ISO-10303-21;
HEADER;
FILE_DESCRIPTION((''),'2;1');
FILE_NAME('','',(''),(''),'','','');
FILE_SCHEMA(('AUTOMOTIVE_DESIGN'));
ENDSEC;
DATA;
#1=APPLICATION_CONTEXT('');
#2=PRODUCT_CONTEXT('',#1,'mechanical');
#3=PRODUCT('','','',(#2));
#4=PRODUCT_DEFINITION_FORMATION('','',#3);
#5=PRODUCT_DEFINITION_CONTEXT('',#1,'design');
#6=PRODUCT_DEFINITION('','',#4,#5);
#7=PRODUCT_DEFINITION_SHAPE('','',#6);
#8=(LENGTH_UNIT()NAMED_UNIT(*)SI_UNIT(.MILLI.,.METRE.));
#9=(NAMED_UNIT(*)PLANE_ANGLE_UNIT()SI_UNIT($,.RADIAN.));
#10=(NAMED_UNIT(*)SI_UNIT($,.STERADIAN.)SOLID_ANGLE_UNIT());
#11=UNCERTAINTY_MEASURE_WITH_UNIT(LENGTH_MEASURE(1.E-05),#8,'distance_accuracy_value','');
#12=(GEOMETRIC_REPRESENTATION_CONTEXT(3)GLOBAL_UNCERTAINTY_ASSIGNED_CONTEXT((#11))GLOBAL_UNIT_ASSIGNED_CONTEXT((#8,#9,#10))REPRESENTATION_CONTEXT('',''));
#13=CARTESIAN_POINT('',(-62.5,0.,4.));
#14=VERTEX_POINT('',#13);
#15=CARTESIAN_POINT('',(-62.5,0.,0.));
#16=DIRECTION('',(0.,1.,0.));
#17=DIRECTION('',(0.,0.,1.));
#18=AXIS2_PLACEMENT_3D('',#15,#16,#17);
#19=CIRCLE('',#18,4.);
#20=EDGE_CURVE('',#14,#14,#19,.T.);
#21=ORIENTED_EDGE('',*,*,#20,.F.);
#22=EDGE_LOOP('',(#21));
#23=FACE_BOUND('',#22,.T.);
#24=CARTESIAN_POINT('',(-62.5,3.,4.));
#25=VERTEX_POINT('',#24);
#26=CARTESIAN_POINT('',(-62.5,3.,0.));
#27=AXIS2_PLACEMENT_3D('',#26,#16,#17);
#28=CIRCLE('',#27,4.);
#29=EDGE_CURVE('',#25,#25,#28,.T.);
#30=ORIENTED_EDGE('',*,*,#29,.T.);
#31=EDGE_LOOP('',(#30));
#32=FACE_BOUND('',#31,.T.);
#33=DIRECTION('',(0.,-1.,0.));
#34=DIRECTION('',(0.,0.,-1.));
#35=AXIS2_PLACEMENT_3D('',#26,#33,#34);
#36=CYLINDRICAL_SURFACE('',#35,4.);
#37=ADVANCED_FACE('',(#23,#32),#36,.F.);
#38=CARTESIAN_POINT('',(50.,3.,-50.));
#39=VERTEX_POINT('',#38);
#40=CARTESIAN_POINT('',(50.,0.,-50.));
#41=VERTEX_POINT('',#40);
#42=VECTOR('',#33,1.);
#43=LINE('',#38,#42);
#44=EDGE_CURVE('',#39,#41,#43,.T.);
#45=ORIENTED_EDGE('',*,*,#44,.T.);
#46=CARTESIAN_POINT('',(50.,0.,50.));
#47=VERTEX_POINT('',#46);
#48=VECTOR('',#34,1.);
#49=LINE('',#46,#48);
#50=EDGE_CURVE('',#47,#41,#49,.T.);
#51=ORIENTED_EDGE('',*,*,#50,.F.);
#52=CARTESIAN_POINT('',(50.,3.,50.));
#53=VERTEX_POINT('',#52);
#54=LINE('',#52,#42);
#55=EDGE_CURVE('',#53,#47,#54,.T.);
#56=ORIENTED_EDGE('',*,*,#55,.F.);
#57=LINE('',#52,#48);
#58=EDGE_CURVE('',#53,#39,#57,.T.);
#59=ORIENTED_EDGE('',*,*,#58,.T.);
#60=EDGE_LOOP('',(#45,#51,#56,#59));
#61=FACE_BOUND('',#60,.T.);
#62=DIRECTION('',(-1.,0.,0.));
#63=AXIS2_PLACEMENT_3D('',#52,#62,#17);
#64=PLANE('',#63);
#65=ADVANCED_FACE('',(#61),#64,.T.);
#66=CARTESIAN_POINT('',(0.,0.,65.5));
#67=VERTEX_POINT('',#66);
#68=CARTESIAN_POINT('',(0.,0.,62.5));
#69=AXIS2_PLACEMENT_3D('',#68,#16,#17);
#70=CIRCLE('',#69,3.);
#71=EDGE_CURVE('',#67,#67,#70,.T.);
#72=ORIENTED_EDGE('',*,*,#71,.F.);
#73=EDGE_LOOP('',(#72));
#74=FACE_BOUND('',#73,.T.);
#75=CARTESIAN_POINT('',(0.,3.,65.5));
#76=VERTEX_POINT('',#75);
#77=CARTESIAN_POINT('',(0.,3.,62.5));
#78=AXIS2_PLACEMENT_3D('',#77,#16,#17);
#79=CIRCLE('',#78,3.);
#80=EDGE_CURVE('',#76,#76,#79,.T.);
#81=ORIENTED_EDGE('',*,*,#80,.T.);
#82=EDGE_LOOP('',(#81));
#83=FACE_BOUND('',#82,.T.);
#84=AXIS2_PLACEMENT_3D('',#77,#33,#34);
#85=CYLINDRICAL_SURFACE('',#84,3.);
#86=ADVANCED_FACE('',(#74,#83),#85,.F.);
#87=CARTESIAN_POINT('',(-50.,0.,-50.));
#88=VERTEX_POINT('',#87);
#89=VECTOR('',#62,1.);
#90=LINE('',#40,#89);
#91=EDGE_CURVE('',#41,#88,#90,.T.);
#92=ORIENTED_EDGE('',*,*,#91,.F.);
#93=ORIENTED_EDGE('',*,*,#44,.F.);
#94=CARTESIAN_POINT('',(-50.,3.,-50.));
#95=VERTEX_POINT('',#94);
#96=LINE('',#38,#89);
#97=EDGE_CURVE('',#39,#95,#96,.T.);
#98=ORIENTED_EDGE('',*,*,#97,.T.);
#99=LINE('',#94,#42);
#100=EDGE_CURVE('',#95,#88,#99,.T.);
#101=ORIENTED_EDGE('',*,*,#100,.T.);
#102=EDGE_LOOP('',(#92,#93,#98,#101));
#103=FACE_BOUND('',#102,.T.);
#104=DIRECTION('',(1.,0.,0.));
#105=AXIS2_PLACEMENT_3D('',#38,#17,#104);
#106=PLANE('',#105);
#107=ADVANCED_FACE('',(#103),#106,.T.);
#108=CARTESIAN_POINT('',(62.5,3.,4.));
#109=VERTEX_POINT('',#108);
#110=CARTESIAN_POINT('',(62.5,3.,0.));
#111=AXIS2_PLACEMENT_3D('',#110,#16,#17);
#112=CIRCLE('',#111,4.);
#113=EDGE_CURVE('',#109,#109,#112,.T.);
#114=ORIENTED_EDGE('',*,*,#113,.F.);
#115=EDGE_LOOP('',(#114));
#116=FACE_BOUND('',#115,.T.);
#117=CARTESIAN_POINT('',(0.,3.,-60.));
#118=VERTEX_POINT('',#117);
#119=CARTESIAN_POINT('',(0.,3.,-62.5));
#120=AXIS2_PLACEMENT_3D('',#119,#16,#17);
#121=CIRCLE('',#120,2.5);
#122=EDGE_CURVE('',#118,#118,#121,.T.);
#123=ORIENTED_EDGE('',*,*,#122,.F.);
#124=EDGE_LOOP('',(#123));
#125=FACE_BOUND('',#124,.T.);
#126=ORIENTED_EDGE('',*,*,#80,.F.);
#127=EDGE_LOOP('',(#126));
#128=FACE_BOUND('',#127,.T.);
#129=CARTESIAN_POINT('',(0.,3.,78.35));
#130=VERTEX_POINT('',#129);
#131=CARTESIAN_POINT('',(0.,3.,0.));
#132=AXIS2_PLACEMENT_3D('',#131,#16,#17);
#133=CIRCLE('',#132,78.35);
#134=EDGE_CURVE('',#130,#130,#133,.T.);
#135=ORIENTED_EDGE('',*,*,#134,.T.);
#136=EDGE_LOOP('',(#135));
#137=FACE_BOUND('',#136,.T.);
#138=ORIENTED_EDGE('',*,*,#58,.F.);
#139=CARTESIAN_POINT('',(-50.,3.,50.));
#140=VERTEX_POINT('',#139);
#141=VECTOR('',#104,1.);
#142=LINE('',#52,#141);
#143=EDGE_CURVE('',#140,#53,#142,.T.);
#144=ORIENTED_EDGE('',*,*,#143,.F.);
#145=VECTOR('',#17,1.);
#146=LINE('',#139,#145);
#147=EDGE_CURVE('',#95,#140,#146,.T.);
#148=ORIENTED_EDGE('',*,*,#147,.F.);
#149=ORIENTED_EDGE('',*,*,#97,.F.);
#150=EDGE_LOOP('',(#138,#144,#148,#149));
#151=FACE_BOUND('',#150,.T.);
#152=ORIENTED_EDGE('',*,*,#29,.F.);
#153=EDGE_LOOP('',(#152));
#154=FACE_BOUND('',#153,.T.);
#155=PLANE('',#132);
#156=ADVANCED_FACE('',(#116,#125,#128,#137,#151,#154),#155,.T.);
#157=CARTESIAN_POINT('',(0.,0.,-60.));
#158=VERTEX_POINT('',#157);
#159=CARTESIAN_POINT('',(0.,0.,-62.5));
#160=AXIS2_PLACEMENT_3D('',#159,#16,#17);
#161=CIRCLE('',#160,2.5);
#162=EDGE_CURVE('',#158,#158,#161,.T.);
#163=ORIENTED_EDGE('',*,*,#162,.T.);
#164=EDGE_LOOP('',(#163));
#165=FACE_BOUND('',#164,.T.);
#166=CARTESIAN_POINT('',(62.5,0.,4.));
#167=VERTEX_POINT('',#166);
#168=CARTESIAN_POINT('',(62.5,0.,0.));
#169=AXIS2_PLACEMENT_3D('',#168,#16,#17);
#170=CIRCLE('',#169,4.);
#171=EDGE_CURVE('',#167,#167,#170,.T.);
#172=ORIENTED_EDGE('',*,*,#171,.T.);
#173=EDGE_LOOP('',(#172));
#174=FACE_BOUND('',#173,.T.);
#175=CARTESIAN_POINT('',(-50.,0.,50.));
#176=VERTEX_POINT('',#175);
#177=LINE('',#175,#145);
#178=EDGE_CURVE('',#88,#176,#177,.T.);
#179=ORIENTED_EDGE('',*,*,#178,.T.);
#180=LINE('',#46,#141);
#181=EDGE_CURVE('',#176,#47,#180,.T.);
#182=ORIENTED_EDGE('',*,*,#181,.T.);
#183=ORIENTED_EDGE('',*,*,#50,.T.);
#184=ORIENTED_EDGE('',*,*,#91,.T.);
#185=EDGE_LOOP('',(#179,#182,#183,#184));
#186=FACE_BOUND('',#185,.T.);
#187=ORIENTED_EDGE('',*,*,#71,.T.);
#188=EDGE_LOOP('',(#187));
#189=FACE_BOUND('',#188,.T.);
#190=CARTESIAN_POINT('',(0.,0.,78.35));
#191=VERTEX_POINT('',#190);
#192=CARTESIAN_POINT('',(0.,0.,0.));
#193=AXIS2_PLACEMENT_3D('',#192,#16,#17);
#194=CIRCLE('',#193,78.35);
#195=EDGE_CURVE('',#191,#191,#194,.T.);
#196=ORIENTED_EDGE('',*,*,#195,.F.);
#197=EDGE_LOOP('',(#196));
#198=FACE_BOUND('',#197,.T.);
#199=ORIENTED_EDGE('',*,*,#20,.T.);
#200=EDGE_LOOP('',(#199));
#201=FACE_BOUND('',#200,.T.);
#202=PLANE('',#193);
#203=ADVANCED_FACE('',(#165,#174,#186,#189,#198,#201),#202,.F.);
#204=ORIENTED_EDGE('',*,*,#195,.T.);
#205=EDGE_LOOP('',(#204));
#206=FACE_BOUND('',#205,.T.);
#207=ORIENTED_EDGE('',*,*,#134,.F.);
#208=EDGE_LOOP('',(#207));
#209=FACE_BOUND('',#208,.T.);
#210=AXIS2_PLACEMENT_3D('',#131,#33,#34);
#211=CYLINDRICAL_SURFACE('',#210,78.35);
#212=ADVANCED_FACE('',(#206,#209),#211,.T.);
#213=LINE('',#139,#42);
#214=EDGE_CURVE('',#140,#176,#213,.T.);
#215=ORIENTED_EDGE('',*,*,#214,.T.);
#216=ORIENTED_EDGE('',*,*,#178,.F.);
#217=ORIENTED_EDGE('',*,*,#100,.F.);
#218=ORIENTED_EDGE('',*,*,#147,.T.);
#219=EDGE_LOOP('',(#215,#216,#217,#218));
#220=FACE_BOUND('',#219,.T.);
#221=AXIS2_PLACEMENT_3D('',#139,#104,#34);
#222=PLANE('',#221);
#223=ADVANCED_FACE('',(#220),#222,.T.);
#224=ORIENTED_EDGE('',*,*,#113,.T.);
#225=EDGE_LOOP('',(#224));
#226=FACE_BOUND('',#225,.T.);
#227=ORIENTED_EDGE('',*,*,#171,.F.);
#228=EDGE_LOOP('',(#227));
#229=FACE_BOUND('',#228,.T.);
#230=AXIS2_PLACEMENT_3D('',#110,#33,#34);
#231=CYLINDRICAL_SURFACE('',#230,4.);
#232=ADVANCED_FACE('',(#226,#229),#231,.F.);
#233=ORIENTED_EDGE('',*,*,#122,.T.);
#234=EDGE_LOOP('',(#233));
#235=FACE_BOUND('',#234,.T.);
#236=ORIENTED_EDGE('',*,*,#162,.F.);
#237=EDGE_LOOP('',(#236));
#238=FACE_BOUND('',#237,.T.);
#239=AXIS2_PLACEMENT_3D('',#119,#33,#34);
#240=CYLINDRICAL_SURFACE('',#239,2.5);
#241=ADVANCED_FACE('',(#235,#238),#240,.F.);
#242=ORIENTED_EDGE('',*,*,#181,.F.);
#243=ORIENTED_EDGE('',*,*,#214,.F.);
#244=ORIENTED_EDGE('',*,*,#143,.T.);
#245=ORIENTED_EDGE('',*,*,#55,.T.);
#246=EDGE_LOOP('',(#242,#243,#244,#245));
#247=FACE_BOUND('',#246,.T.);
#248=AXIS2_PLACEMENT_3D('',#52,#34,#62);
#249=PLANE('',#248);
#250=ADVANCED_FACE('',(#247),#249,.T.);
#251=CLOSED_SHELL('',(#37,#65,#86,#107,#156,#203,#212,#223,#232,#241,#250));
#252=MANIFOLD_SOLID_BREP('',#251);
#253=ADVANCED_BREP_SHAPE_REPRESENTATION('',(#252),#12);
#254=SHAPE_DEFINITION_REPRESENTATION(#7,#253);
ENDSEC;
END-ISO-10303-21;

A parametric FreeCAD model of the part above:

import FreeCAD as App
import Part
import Sketcher
from FreeCAD import Vector


def add_polygon(sketch, points):
    """Adds a closed chain of lines whose ends are joined by coincident constraints."""
    first, n = sketch.GeometryCount, len(points)
    for a, b in zip(points, points[1:] + points[:1]):
        sketch.addGeometry(Part.LineSegment(App.Vector(*a, 0), App.Vector(*b, 0)), False)
    for i in range(n):
        sketch.addConstraint(Sketcher.Constraint("Coincident", first + i, 2, first + (i + 1) % n, 1))

doc = App.newDocument("Part")
body = doc.addObject("PartDesign::Body", "Body")

sketch1 = doc.addObject("Sketcher::SketchObject", "Sketch")
body.addObject(sketch1)
sketch1.AttachmentSupport = (doc.XZ_Plane, [""])
sketch1.MapMode = "FlatFace"
sketch1.addGeometry(Part.Circle(Vector(0, 0, 0), Vector(0, 0, 1), 78.35), False)
sketch1.addGeometry(Part.Circle(Vector(-62.5, 0, 0), Vector(0, 0, 1), 4), False)
sketch1.addGeometry(Part.Circle(Vector(0, -62.5, 0), Vector(0, 0, 1), 2.5), False)
add_polygon(sketch1, [(50, 50), (-50, 50), (-50, -50), (50, -50)])
sketch1.addGeometry(Part.Circle(Vector(62.5, 0, 0), Vector(0, 0, 1), 4), False)
sketch1.addGeometry(Part.Circle(Vector(0, 62.5, 0), Vector(0, 0, 1), 3), False)
sketch1.addConstraint([
    Sketcher.Constraint("Horizontal", 3),
    Sketcher.Constraint("Vertical", 4),
    Sketcher.Constraint("Horizontal", 5),
    Sketcher.Constraint("Vertical", 6),
    Sketcher.Constraint("Coincident", 0, 3, -1, 1),
    Sketcher.Constraint("Equal", 1, 7),
    Sketcher.Constraint("Symmetric", 1, 3, 7, 3, -1, 1),
    Sketcher.Constraint("Symmetric", 2, 3, 8, 3, -1, 1),
    Sketcher.Constraint("Symmetric", 3, 2, 5, 2, -1, 1),
    Sketcher.Constraint("PointOnObject", 1, 3, -1),
    Sketcher.Constraint("PointOnObject", 2, 3, -2),
    Sketcher.Constraint("Equal", 5, 4),
    Sketcher.Constraint("Diameter", 1, 8.0),
    Sketcher.Constraint("Diameter", 2, 5.0),
    Sketcher.Constraint("Diameter", 8, 6.0),
    Sketcher.Constraint("Diameter", 0, 156.7),
    Sketcher.Constraint("DistanceX", 3, 2, 3, 1, 100.0),
    Sketcher.Constraint("DistanceX", 1, 3, 7, 3, 125.0),
    Sketcher.Constraint("DistanceY", 2, 3, 8, 3, 125.0),
])
pad1 = doc.addObject("PartDesign::Pad", "Pad")
body.addObject(pad1)
pad1.Profile = sketch1
pad1.Length = 3
pad1.Reversed = True

doc.recompute()
